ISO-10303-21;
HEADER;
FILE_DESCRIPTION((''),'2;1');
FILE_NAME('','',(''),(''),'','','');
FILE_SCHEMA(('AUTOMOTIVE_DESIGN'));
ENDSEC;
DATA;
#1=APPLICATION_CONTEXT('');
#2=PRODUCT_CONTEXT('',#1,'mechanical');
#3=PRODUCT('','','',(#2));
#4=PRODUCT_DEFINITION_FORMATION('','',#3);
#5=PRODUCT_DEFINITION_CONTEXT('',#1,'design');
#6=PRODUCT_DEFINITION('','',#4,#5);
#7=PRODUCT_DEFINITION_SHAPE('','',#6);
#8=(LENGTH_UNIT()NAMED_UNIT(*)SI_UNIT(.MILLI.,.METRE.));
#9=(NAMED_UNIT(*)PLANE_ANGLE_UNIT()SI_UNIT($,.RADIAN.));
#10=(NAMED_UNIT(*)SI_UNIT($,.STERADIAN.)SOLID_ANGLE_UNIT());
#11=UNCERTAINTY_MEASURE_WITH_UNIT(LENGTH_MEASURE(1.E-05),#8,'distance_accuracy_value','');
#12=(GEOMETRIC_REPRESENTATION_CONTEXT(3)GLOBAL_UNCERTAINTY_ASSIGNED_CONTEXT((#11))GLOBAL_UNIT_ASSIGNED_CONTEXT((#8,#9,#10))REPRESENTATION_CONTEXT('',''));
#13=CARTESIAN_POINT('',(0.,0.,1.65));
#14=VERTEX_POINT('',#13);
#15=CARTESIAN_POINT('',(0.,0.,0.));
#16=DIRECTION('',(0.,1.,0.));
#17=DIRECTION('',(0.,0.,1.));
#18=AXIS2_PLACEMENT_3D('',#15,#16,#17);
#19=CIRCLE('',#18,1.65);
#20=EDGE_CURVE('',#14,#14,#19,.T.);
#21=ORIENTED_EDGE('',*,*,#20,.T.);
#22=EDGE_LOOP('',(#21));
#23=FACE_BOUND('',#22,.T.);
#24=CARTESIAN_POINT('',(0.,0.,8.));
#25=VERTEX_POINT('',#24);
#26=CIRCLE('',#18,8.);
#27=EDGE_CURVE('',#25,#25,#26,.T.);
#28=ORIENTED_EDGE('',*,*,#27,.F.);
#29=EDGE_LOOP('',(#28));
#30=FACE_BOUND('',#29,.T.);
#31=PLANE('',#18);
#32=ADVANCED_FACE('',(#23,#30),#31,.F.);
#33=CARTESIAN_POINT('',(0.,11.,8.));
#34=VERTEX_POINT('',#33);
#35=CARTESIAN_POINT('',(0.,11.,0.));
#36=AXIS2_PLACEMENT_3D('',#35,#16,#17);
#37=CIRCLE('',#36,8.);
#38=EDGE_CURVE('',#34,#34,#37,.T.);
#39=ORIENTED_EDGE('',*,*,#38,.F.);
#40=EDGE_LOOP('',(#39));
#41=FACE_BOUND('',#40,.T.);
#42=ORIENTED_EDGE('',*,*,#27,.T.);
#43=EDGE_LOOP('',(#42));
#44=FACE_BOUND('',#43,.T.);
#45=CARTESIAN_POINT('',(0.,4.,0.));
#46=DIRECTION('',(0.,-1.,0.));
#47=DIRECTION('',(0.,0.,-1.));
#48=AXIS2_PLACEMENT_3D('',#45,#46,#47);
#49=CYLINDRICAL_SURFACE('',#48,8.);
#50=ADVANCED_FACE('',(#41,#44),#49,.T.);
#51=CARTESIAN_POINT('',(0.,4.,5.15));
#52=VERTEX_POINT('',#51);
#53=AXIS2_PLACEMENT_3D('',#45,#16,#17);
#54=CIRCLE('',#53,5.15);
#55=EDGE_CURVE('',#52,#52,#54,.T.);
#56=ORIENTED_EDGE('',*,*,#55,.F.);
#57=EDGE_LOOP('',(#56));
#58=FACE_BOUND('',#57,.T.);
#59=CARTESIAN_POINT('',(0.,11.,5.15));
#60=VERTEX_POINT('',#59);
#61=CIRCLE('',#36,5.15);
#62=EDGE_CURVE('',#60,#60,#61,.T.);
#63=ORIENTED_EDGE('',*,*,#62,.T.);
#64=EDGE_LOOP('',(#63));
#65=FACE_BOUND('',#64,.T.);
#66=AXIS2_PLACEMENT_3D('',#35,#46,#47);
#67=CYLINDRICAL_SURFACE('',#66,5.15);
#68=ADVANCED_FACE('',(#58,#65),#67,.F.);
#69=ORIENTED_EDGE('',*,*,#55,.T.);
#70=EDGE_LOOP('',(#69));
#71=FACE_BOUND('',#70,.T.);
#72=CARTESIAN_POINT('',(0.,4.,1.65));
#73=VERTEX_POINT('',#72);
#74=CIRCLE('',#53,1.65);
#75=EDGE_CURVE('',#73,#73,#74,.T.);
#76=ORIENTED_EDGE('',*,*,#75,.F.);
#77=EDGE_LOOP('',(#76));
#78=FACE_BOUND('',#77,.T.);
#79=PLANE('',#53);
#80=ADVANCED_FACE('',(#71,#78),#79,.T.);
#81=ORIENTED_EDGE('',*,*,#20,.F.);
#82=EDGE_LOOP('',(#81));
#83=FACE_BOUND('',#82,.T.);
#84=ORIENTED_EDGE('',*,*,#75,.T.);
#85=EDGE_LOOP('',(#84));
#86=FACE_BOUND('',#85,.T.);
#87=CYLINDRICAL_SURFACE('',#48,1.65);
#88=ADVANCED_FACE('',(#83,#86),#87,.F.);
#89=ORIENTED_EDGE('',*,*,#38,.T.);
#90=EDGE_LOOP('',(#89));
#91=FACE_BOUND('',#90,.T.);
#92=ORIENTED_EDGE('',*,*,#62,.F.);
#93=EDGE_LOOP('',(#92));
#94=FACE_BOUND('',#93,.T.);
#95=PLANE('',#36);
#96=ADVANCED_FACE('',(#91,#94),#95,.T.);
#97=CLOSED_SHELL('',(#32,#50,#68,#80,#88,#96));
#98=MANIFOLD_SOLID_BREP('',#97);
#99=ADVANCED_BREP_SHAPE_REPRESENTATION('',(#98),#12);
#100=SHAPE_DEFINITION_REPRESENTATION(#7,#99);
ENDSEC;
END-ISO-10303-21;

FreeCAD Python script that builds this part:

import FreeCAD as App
import Part
import Sketcher
from FreeCAD import Vector
Q = App.Units.Quantity

doc = App.newDocument("Part")
body = doc.addObject("PartDesign::Body", "Body")

# Sketch on XZ plane
sketch1 = doc.addObject("Sketcher::SketchObject", "Sketch")
body.addObject(sketch1)
sketch1.AttachmentSupport = (doc.XZ_Plane, [""])
sketch1.MapMode = "FlatFace"
sketch1.addGeometry([
    Part.Circle(Vector(0, 0, 0), Vector(0, 0, 1), 8),
    Part.Circle(Vector(0, 0, 0), Vector(0, 0, 1), 1.6),
], False)
sketch1.addConstraint([
    Sketcher.Constraint("Coincident", 0, 3, -1, 1),
    Sketcher.Constraint("Coincident", 1, 3, -1, 1),
    Sketcher.Constraint("Diameter", 0, Q("16 mm")),
    Sketcher.Constraint("Diameter", 1, Q("3.3 mm")),
])
pad1 = doc.addObject("PartDesign::Pad", "Pad")
body.addObject(pad1)
pad1.Profile = sketch1
pad1.Length = 4
pad1.Reversed = True

# Sketch on XZ plane
sketch2 = doc.addObject("Sketcher::SketchObject", "Sketch001")
body.addObject(sketch2)
sketch2.AttachmentSupport = (doc.XZ_Plane, [""])
sketch2.MapMode = "FlatFace"
sketch2.AttachmentOffset = App.Placement(Vector(0, 0, -4), App.Rotation())
sketch2.addGeometry([
    Part.Circle(Vector(0, 0, 0), Vector(0, 0, 1), 8),
    Part.Circle(Vector(0, 0, 0), Vector(0, 0, 1), 5),
], False)
sketch2.addConstraint([
    Sketcher.Constraint("Coincident", 0, 3, -1, 1),
    Sketcher.Constraint("Coincident", 1, 3, -1, 1),
    Sketcher.Constraint("Diameter", 0, Q("16 mm")),
    Sketcher.Constraint("Diameter", 1, Q("10.3 mm")),
])
pad2 = doc.addObject("PartDesign::Pad", "Pad001")
body.addObject(pad2)
pad2.Profile = sketch2
pad2.Length = 7
pad2.Reversed = True

doc.recompute()
